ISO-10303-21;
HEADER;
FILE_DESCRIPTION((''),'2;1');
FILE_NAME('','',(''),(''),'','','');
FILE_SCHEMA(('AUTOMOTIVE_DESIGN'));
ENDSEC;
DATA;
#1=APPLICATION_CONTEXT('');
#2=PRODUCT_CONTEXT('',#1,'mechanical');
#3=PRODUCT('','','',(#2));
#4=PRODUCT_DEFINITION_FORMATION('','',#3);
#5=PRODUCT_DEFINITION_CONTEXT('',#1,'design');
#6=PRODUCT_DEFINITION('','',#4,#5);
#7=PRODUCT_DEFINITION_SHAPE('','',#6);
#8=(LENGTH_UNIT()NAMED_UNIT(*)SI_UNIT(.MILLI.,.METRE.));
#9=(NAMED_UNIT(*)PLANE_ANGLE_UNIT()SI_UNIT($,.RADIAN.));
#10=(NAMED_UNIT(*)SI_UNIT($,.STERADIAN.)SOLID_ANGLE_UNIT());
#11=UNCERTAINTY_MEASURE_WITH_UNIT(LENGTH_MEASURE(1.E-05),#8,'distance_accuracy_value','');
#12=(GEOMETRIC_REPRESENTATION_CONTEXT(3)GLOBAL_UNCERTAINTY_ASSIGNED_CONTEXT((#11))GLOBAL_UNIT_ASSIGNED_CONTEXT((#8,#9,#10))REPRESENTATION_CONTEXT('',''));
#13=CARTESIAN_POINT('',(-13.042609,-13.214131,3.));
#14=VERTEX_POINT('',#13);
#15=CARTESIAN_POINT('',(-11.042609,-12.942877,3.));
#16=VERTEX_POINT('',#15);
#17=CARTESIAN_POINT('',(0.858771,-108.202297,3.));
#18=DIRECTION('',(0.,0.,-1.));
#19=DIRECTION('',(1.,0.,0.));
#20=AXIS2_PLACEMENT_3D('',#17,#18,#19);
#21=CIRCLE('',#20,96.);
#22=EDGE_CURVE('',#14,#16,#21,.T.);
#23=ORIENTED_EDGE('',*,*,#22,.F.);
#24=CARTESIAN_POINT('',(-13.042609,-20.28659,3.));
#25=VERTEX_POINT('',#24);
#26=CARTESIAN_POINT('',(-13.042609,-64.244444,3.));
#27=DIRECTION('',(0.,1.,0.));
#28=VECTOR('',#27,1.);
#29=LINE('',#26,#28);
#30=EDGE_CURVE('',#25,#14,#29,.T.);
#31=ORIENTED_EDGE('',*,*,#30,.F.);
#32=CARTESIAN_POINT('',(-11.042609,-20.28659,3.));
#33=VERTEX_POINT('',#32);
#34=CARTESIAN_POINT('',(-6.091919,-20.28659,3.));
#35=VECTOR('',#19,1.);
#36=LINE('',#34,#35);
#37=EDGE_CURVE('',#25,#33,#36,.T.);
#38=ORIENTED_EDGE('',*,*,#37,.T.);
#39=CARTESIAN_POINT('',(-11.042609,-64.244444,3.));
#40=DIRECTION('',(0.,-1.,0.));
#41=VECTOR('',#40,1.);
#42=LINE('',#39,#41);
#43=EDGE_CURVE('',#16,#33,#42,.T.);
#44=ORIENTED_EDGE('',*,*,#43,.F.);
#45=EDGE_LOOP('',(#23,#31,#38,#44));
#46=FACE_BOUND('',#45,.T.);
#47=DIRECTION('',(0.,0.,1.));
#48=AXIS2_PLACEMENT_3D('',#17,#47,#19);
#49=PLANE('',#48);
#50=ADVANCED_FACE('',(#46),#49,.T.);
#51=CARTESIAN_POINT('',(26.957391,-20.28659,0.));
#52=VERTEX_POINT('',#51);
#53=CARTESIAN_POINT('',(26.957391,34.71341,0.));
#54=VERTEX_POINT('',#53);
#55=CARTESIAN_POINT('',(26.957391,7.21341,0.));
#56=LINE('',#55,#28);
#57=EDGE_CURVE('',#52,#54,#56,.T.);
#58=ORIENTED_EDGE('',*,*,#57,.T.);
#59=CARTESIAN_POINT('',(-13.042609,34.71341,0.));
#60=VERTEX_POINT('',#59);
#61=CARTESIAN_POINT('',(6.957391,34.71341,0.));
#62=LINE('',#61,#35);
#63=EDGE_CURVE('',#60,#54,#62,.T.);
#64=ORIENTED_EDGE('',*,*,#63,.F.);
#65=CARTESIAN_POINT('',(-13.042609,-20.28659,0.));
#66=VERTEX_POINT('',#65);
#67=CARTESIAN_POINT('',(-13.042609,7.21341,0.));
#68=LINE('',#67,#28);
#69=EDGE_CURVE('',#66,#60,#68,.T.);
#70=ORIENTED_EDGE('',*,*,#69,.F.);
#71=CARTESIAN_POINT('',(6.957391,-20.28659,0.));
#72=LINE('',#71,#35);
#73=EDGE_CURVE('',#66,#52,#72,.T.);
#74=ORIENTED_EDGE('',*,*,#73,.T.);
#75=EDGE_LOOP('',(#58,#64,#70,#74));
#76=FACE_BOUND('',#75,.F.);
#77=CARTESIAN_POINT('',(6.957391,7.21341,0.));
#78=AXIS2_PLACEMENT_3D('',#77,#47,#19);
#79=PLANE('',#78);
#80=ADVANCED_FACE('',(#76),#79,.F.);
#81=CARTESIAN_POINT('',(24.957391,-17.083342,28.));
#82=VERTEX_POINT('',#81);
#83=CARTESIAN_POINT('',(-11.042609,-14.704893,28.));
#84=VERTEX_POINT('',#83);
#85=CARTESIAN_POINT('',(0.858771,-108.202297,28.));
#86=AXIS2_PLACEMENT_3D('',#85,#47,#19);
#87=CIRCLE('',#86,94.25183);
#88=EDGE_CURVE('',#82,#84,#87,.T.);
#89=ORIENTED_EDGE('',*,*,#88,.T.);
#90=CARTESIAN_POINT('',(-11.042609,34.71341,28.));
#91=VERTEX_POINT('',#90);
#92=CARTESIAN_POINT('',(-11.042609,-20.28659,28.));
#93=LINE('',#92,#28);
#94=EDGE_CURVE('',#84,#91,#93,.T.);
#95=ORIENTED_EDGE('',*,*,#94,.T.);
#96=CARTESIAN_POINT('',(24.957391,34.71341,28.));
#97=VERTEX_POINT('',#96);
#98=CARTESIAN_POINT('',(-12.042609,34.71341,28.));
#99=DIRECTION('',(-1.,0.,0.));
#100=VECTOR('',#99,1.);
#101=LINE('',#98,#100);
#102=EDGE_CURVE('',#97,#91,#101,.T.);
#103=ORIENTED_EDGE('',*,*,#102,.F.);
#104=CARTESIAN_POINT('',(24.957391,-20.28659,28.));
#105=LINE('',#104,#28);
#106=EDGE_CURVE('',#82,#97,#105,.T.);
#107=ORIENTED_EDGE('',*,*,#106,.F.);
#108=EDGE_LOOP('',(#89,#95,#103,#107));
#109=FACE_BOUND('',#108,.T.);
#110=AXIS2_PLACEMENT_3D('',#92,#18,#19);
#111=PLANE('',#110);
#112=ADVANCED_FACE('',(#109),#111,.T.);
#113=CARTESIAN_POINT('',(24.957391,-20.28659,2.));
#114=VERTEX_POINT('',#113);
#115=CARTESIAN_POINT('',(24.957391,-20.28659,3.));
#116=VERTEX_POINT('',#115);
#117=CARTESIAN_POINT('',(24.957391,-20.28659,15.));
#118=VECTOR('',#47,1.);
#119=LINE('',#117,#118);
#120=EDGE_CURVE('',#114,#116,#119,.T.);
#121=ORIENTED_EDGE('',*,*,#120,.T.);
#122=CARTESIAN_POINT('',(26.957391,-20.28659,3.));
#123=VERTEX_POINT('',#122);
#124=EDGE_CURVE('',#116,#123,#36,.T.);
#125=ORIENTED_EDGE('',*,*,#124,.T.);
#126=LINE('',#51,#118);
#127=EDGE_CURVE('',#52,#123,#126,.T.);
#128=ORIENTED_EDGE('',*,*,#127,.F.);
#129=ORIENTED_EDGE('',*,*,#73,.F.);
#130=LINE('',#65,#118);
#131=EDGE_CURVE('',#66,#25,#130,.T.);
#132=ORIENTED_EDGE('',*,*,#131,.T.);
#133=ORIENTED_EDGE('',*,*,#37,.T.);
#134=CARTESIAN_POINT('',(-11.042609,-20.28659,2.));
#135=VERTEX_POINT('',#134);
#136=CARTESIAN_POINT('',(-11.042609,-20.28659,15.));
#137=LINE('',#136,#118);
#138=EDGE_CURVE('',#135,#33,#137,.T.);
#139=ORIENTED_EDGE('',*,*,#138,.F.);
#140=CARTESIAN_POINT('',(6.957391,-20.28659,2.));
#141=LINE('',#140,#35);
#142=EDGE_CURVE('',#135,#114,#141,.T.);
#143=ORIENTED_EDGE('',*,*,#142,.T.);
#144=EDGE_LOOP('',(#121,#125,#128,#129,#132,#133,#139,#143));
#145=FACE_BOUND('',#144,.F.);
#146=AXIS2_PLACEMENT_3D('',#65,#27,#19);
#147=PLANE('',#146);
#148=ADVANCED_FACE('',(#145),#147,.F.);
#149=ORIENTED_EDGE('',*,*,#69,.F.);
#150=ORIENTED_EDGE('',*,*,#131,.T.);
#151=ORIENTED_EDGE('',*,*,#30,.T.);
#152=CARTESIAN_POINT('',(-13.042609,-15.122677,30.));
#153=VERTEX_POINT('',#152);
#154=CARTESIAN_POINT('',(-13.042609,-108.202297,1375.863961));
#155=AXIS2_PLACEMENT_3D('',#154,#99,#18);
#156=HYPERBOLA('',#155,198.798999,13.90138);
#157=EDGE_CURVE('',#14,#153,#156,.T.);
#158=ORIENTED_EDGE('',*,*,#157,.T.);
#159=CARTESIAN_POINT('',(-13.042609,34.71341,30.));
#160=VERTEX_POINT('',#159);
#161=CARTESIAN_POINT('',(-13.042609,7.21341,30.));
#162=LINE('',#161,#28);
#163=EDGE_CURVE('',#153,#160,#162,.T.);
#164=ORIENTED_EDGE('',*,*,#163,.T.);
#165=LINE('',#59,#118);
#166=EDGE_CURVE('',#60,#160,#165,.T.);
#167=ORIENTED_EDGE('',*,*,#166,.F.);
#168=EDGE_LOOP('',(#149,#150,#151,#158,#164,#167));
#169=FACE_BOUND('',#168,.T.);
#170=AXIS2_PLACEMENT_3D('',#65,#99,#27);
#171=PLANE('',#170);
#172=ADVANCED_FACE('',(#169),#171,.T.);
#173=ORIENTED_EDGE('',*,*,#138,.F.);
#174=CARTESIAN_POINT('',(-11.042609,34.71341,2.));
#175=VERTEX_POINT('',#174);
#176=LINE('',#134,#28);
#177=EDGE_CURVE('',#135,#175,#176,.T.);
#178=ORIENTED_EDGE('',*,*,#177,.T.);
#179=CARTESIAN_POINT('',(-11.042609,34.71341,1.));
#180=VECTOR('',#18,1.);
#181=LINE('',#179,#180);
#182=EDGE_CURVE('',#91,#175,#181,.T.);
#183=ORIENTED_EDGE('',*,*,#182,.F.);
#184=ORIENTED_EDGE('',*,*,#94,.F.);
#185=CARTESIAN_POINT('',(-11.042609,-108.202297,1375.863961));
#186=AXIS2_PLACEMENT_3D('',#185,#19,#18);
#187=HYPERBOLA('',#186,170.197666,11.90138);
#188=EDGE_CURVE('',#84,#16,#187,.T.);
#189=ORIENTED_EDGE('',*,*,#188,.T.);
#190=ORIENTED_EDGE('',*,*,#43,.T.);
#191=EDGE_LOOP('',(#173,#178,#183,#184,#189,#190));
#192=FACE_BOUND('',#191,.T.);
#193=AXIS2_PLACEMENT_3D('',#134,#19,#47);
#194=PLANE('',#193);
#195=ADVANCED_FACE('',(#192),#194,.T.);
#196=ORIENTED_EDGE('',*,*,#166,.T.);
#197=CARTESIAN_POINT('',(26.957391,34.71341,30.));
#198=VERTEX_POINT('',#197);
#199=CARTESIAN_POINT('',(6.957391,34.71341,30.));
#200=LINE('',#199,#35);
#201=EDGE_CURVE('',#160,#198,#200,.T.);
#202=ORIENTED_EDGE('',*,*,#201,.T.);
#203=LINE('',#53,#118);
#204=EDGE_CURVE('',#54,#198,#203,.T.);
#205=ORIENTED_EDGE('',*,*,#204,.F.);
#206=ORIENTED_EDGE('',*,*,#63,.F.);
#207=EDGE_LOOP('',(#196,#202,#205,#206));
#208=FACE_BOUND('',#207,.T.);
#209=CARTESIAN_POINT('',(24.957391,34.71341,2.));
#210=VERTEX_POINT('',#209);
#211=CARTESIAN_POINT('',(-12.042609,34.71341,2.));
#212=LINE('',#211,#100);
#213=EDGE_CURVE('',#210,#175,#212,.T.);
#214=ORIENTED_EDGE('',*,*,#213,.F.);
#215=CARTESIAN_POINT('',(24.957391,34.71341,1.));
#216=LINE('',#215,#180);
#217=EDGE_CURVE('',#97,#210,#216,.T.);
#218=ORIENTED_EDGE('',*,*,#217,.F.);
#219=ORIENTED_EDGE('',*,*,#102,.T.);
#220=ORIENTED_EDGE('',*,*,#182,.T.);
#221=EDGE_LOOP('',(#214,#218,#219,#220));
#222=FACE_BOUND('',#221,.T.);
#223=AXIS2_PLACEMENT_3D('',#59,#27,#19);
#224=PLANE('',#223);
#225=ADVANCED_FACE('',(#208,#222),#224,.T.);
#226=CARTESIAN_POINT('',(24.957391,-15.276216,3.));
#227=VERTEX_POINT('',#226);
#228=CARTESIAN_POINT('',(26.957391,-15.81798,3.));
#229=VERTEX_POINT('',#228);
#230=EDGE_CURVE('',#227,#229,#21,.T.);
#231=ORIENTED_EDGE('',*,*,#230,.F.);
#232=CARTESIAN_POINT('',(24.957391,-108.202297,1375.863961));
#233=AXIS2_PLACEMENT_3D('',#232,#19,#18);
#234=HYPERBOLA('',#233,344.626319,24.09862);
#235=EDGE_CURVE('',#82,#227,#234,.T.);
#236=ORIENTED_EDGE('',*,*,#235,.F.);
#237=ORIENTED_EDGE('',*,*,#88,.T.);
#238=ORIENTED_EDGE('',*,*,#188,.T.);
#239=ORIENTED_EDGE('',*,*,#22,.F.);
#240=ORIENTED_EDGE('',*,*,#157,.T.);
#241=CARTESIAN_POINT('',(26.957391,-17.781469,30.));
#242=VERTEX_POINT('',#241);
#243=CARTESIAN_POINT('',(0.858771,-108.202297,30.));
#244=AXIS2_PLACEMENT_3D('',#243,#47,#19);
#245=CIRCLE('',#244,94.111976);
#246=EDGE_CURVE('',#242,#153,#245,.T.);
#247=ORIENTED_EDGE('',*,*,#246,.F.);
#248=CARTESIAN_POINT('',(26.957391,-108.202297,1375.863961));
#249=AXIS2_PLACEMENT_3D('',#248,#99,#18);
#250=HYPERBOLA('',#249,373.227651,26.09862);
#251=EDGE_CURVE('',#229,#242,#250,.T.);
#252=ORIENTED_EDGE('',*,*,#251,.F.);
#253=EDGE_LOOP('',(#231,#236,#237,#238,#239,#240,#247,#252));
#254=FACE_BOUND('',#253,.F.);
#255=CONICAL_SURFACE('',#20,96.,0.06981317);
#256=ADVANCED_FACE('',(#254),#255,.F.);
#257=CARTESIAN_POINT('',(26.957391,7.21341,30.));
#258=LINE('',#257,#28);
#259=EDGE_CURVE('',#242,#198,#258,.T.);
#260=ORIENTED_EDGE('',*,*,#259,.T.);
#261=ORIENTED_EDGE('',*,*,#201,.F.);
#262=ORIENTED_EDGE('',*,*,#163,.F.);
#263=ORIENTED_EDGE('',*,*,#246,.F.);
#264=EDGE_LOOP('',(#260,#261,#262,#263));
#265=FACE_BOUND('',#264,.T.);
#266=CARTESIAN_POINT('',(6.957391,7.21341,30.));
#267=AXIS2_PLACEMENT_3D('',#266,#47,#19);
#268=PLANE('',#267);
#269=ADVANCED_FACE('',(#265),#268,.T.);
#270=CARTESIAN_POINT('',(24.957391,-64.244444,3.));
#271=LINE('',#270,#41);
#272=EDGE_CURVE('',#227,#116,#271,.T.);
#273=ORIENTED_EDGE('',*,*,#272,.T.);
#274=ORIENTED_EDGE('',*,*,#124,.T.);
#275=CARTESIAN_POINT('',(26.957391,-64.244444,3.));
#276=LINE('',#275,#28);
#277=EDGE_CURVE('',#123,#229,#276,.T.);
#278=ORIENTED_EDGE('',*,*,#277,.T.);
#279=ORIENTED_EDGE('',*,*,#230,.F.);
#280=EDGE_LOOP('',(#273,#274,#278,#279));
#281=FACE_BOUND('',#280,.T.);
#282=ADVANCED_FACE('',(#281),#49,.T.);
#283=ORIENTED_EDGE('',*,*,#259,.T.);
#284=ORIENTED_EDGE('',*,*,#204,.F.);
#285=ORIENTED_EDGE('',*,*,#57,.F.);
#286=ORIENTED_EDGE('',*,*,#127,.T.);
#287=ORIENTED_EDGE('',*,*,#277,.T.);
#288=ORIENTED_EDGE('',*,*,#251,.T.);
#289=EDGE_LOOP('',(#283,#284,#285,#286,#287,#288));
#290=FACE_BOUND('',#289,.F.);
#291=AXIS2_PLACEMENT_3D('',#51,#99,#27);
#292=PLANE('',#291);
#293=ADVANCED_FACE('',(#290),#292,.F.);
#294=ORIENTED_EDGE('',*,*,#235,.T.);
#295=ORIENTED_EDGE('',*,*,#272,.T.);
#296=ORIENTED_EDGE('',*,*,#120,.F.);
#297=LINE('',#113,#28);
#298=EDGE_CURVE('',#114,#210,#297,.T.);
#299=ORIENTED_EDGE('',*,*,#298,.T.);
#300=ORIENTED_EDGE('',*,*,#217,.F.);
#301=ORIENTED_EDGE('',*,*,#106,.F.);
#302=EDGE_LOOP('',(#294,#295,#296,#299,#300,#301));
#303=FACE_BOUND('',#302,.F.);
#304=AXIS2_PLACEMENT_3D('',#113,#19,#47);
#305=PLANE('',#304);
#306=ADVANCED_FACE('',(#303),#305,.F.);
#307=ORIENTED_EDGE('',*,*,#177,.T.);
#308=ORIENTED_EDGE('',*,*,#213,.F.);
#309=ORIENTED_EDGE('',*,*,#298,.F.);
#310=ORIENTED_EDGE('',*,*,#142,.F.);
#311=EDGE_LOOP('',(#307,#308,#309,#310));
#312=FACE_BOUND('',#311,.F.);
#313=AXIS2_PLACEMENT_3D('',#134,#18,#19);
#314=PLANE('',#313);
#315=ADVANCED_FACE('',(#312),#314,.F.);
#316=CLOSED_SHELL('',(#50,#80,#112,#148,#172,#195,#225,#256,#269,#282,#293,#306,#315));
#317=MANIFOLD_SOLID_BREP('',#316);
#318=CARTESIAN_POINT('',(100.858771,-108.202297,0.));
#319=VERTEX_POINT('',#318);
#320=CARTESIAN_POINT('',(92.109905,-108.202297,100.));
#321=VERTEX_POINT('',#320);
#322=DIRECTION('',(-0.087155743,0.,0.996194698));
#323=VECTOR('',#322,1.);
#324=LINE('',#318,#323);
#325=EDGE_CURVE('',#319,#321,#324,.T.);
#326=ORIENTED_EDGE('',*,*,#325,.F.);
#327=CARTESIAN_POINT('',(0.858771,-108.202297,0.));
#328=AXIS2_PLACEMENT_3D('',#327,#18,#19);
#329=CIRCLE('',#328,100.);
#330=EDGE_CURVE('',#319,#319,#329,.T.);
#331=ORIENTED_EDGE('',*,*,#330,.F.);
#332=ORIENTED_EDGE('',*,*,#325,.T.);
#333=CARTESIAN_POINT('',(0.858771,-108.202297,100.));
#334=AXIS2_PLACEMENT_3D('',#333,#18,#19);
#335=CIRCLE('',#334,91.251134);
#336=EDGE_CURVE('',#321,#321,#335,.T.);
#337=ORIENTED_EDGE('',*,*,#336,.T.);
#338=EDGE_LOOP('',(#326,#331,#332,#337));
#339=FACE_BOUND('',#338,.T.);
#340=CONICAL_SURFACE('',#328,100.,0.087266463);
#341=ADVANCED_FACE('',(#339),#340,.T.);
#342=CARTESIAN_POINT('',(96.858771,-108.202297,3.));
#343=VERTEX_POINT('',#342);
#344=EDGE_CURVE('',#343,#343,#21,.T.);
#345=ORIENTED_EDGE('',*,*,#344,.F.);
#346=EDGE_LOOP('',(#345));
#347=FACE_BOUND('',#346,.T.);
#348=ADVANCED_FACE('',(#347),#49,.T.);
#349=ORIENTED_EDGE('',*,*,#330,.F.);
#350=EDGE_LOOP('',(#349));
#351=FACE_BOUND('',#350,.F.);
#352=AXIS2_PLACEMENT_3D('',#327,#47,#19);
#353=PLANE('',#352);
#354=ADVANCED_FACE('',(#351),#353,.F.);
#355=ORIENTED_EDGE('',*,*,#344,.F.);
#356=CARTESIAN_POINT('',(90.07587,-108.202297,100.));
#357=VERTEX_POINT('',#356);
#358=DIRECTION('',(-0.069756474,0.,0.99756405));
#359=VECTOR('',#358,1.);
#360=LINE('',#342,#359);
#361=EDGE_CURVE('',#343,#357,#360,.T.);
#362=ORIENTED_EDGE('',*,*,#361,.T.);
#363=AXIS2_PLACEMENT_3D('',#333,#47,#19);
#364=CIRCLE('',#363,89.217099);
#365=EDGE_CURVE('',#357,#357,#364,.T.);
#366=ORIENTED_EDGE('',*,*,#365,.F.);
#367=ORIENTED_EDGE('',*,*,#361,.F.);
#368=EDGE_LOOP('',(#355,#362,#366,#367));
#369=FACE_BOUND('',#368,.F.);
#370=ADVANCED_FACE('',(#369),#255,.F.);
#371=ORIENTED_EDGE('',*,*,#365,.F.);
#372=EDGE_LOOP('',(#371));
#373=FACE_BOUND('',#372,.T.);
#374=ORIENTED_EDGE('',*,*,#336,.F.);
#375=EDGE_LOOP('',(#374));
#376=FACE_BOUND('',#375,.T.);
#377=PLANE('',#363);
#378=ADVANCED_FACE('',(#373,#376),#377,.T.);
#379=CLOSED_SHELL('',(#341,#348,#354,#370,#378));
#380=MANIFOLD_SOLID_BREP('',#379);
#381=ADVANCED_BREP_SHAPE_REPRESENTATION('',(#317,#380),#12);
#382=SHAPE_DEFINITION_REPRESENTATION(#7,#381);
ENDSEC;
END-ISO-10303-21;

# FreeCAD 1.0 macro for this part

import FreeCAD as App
import Part
import Sketcher
Q = App.Units.Quantity

doc = App.newDocument("Part")
params = doc.addObject("Spreadsheet::Sheet", "Params")
for row, (alias, value) in enumerate([
    ("sketch1_width", "40 mm"),
    ("sketch1_height", "55 mm"),
    ("pad1_length", "30 mm"),
    ("sketch2_width", "36 mm"),
    ("sketch2_height", "26 mm"),
    ("sketch3_diameter", "200 mm"),
    ("pad2_length", "100 mm"),
    ("pad2_taper", "-5 deg"),
    ("sketch4_diameter", "192 mm"),
    ("pad3_length", "100 mm"),
    ("pad3_taper", "-4 deg"),
], start=1):
    params.set(f"A{row}", alias)
    params.set(f"B{row}", "=" + value)
    params.setAlias(f"B{row}", alias)

body = doc.addObject("PartDesign::Body", "Body")

# Sketch on XY plane
sketch1 = body.newObject("Sketcher::SketchObject", "Sketch")
sketch1.AttachmentSupport = (doc.getObject("XY_Plane"), [""])
sketch1.MapMode = "FlatFace"
sketch1.addGeometry([
    Part.LineSegment(App.Vector(-13, 48, 0), App.Vector(-13, -7, 0)),
    Part.LineSegment(App.Vector(-13, -7, 0), App.Vector(27, -7, 0)),
    Part.LineSegment(App.Vector(27, -7, 0), App.Vector(27, 48, 0)),
    Part.LineSegment(App.Vector(27, 48, 0), App.Vector(-13, 48, 0)),
], False)
sketch1.addConstraint([
    Sketcher.Constraint("Coincident", 0, 2, 1, 1),
    Sketcher.Constraint("Coincident", 1, 2, 2, 1),
    Sketcher.Constraint("Coincident", 2, 2, 3, 1),
    Sketcher.Constraint("Coincident", 3, 2, 0, 1),
    Sketcher.Constraint("Vertical", 0),
    Sketcher.Constraint("Horizontal", 1),
    Sketcher.Constraint("Vertical", 2),
    Sketcher.Constraint("Horizontal", 3),
    Sketcher.Constraint("DistanceX", 1, 1, 1, 2, Q("40 mm")),
    Sketcher.Constraint("DistanceY", 0, 2, 0, 1, Q("55 mm")),
    Sketcher.Constraint("DistanceX", 0, 2, -1, 1, Q("13.042609 mm")),
    Sketcher.Constraint("DistanceY", 0, 2, -1, 1, Q("7.38659 mm")),
])
sketch1.setExpression("Constraints[8]", "Params.sketch1_width")
sketch1.setExpression("Constraints[9]", "Params.sketch1_height")
pad1 = body.newObject("PartDesign::Pad", "Pad")
pad1.Profile = sketch1
pad1.setExpression("Length", "Params.pad1_length")

# Sketch on XZ plane
sketch2 = body.newObject("Sketcher::SketchObject", "Sketch001")
sketch2.AttachmentSupport = (doc.getObject("XZ_Plane"), [""])
sketch2.MapMode = "FlatFace"
sketch2.AttachmentOffset = App.Placement(App.Vector(0, 0, 7.38659), App.Rotation())
sketch2.addGeometry([
    Part.LineSegment(App.Vector(-11, 28, 0), App.Vector(-11, 2, 0)),
    Part.LineSegment(App.Vector(-11, 2, 0), App.Vector(25, 2, 0)),
    Part.LineSegment(App.Vector(25, 2, 0), App.Vector(25, 28, 0)),
    Part.LineSegment(App.Vector(25, 28, 0), App.Vector(-11, 28, 0)),
], False)
sketch2.addConstraint([
    Sketcher.Constraint("Coincident", 0, 2, 1, 1),
    Sketcher.Constraint("Coincident", 1, 2, 2, 1),
    Sketcher.Constraint("Coincident", 2, 2, 3, 1),
    Sketcher.Constraint("Coincident", 3, 2, 0, 1),
    Sketcher.Constraint("Vertical", 0),
    Sketcher.Constraint("Horizontal", 1),
    Sketcher.Constraint("Vertical", 2),
    Sketcher.Constraint("Horizontal", 3),
    Sketcher.Constraint("DistanceX", 1, 1, 1, 2, Q("36 mm")),
    Sketcher.Constraint("DistanceY", 0, 2, 0, 1, Q("26 mm")),
    Sketcher.Constraint("DistanceY", -1, 1, 0, 2, Q("2 mm")),
    Sketcher.Constraint("DistanceX", 0, 2, -1, 1, Q("11.042609 mm")),
])
sketch2.setExpression("Constraints[8]", "Params.sketch2_width")
sketch2.setExpression("Constraints[9]", "Params.sketch2_height")
pocket1 = body.newObject("PartDesign::Pocket", "Pocket")
pocket1.Profile = sketch2
pocket1.Type = "ThroughAll"
pocket1.Midplane = True
body2 = doc.addObject("PartDesign::Body", "Body001")

# Sketch on XY plane
sketch3 = body2.newObject("Sketcher::SketchObject", "Sketch002")
sketch3.AttachmentSupport = (doc.getObject("XY_Plane001"), [""])
sketch3.MapMode = "FlatFace"
sketch3.addGeometry(Part.Circle(App.Vector(1, -108, 0), App.Vector(0, 0, 1), 100), False)
sketch3.addConstraint([
    Sketcher.Constraint("Diameter", 0, Q("200 mm")),
    Sketcher.Constraint("DistanceX", -1, 1, 0, 3, Q("0.858771 mm")),
    Sketcher.Constraint("DistanceY", 0, 3, -1, 1, Q("108.202297 mm")),
])
sketch3.setExpression("Constraints[0]", "Params.sketch3_diameter")
pad2 = body2.newObject("PartDesign::Pad", "Pad001")
pad2.Profile = sketch3
pad2.setExpression("Length", "Params.pad2_length")
pad2.setExpression("TaperAngle", "Params.pad2_taper")
body3 = doc.addObject("PartDesign::Body", "Body002")
doc.recompute()

body.Placement = App.Placement(App.Vector(0, -12.9, 0), App.Rotation(App.Vector(0, 0, 1), 0))
boolean = body3.newObject("PartDesign::Boolean", "Boolean")
boolean.Type = "Fuse"
boolean.addObjects([body])
body4 = doc.addObject("PartDesign::Body", "Body003")

# Sketch on XY plane
sketch4 = body4.newObject("Sketcher::SketchObject", "Sketch003")
sketch4.AttachmentSupport = (doc.getObject("XY_Plane003"), [""])
sketch4.MapMode = "FlatFace"
sketch4.AttachmentOffset = App.Placement(App.Vector(0, 0, 3), App.Rotation())
sketch4.addGeometry(Part.Circle(App.Vector(1, -108, 0), App.Vector(0, 0, 1), 96), False)
sketch4.addConstraint([
    Sketcher.Constraint("Diameter", 0, Q("192 mm")),
    Sketcher.Constraint("DistanceX", -1, 1, 0, 3, Q("0.858771 mm")),
    Sketcher.Constraint("DistanceY", 0, 3, -1, 1, Q("108.202297 mm")),
])
sketch4.setExpression("Constraints[0]", "Params.sketch4_diameter")
pad3 = body4.newObject("PartDesign::Pad", "Pad002")
pad3.Profile = sketch4
pad3.setExpression("Length", "Params.pad3_length")
pad3.setExpression("TaperAngle", "Params.pad3_taper")
doc.recompute()

body5 = doc.addObject("PartDesign::Body", "Body004")
body5.BaseFeature = body4
boolean2 = body3.newObject("PartDesign::Boolean", "Boolean001")
boolean2.Type = "Cut"
boolean2.addObjects([body5])
doc.recompute()

boolean3 = body2.newObject("PartDesign::Boolean", "Boolean002")
boolean3.Type = "Cut"
boolean3.addObjects([body4])

doc.recompute()
